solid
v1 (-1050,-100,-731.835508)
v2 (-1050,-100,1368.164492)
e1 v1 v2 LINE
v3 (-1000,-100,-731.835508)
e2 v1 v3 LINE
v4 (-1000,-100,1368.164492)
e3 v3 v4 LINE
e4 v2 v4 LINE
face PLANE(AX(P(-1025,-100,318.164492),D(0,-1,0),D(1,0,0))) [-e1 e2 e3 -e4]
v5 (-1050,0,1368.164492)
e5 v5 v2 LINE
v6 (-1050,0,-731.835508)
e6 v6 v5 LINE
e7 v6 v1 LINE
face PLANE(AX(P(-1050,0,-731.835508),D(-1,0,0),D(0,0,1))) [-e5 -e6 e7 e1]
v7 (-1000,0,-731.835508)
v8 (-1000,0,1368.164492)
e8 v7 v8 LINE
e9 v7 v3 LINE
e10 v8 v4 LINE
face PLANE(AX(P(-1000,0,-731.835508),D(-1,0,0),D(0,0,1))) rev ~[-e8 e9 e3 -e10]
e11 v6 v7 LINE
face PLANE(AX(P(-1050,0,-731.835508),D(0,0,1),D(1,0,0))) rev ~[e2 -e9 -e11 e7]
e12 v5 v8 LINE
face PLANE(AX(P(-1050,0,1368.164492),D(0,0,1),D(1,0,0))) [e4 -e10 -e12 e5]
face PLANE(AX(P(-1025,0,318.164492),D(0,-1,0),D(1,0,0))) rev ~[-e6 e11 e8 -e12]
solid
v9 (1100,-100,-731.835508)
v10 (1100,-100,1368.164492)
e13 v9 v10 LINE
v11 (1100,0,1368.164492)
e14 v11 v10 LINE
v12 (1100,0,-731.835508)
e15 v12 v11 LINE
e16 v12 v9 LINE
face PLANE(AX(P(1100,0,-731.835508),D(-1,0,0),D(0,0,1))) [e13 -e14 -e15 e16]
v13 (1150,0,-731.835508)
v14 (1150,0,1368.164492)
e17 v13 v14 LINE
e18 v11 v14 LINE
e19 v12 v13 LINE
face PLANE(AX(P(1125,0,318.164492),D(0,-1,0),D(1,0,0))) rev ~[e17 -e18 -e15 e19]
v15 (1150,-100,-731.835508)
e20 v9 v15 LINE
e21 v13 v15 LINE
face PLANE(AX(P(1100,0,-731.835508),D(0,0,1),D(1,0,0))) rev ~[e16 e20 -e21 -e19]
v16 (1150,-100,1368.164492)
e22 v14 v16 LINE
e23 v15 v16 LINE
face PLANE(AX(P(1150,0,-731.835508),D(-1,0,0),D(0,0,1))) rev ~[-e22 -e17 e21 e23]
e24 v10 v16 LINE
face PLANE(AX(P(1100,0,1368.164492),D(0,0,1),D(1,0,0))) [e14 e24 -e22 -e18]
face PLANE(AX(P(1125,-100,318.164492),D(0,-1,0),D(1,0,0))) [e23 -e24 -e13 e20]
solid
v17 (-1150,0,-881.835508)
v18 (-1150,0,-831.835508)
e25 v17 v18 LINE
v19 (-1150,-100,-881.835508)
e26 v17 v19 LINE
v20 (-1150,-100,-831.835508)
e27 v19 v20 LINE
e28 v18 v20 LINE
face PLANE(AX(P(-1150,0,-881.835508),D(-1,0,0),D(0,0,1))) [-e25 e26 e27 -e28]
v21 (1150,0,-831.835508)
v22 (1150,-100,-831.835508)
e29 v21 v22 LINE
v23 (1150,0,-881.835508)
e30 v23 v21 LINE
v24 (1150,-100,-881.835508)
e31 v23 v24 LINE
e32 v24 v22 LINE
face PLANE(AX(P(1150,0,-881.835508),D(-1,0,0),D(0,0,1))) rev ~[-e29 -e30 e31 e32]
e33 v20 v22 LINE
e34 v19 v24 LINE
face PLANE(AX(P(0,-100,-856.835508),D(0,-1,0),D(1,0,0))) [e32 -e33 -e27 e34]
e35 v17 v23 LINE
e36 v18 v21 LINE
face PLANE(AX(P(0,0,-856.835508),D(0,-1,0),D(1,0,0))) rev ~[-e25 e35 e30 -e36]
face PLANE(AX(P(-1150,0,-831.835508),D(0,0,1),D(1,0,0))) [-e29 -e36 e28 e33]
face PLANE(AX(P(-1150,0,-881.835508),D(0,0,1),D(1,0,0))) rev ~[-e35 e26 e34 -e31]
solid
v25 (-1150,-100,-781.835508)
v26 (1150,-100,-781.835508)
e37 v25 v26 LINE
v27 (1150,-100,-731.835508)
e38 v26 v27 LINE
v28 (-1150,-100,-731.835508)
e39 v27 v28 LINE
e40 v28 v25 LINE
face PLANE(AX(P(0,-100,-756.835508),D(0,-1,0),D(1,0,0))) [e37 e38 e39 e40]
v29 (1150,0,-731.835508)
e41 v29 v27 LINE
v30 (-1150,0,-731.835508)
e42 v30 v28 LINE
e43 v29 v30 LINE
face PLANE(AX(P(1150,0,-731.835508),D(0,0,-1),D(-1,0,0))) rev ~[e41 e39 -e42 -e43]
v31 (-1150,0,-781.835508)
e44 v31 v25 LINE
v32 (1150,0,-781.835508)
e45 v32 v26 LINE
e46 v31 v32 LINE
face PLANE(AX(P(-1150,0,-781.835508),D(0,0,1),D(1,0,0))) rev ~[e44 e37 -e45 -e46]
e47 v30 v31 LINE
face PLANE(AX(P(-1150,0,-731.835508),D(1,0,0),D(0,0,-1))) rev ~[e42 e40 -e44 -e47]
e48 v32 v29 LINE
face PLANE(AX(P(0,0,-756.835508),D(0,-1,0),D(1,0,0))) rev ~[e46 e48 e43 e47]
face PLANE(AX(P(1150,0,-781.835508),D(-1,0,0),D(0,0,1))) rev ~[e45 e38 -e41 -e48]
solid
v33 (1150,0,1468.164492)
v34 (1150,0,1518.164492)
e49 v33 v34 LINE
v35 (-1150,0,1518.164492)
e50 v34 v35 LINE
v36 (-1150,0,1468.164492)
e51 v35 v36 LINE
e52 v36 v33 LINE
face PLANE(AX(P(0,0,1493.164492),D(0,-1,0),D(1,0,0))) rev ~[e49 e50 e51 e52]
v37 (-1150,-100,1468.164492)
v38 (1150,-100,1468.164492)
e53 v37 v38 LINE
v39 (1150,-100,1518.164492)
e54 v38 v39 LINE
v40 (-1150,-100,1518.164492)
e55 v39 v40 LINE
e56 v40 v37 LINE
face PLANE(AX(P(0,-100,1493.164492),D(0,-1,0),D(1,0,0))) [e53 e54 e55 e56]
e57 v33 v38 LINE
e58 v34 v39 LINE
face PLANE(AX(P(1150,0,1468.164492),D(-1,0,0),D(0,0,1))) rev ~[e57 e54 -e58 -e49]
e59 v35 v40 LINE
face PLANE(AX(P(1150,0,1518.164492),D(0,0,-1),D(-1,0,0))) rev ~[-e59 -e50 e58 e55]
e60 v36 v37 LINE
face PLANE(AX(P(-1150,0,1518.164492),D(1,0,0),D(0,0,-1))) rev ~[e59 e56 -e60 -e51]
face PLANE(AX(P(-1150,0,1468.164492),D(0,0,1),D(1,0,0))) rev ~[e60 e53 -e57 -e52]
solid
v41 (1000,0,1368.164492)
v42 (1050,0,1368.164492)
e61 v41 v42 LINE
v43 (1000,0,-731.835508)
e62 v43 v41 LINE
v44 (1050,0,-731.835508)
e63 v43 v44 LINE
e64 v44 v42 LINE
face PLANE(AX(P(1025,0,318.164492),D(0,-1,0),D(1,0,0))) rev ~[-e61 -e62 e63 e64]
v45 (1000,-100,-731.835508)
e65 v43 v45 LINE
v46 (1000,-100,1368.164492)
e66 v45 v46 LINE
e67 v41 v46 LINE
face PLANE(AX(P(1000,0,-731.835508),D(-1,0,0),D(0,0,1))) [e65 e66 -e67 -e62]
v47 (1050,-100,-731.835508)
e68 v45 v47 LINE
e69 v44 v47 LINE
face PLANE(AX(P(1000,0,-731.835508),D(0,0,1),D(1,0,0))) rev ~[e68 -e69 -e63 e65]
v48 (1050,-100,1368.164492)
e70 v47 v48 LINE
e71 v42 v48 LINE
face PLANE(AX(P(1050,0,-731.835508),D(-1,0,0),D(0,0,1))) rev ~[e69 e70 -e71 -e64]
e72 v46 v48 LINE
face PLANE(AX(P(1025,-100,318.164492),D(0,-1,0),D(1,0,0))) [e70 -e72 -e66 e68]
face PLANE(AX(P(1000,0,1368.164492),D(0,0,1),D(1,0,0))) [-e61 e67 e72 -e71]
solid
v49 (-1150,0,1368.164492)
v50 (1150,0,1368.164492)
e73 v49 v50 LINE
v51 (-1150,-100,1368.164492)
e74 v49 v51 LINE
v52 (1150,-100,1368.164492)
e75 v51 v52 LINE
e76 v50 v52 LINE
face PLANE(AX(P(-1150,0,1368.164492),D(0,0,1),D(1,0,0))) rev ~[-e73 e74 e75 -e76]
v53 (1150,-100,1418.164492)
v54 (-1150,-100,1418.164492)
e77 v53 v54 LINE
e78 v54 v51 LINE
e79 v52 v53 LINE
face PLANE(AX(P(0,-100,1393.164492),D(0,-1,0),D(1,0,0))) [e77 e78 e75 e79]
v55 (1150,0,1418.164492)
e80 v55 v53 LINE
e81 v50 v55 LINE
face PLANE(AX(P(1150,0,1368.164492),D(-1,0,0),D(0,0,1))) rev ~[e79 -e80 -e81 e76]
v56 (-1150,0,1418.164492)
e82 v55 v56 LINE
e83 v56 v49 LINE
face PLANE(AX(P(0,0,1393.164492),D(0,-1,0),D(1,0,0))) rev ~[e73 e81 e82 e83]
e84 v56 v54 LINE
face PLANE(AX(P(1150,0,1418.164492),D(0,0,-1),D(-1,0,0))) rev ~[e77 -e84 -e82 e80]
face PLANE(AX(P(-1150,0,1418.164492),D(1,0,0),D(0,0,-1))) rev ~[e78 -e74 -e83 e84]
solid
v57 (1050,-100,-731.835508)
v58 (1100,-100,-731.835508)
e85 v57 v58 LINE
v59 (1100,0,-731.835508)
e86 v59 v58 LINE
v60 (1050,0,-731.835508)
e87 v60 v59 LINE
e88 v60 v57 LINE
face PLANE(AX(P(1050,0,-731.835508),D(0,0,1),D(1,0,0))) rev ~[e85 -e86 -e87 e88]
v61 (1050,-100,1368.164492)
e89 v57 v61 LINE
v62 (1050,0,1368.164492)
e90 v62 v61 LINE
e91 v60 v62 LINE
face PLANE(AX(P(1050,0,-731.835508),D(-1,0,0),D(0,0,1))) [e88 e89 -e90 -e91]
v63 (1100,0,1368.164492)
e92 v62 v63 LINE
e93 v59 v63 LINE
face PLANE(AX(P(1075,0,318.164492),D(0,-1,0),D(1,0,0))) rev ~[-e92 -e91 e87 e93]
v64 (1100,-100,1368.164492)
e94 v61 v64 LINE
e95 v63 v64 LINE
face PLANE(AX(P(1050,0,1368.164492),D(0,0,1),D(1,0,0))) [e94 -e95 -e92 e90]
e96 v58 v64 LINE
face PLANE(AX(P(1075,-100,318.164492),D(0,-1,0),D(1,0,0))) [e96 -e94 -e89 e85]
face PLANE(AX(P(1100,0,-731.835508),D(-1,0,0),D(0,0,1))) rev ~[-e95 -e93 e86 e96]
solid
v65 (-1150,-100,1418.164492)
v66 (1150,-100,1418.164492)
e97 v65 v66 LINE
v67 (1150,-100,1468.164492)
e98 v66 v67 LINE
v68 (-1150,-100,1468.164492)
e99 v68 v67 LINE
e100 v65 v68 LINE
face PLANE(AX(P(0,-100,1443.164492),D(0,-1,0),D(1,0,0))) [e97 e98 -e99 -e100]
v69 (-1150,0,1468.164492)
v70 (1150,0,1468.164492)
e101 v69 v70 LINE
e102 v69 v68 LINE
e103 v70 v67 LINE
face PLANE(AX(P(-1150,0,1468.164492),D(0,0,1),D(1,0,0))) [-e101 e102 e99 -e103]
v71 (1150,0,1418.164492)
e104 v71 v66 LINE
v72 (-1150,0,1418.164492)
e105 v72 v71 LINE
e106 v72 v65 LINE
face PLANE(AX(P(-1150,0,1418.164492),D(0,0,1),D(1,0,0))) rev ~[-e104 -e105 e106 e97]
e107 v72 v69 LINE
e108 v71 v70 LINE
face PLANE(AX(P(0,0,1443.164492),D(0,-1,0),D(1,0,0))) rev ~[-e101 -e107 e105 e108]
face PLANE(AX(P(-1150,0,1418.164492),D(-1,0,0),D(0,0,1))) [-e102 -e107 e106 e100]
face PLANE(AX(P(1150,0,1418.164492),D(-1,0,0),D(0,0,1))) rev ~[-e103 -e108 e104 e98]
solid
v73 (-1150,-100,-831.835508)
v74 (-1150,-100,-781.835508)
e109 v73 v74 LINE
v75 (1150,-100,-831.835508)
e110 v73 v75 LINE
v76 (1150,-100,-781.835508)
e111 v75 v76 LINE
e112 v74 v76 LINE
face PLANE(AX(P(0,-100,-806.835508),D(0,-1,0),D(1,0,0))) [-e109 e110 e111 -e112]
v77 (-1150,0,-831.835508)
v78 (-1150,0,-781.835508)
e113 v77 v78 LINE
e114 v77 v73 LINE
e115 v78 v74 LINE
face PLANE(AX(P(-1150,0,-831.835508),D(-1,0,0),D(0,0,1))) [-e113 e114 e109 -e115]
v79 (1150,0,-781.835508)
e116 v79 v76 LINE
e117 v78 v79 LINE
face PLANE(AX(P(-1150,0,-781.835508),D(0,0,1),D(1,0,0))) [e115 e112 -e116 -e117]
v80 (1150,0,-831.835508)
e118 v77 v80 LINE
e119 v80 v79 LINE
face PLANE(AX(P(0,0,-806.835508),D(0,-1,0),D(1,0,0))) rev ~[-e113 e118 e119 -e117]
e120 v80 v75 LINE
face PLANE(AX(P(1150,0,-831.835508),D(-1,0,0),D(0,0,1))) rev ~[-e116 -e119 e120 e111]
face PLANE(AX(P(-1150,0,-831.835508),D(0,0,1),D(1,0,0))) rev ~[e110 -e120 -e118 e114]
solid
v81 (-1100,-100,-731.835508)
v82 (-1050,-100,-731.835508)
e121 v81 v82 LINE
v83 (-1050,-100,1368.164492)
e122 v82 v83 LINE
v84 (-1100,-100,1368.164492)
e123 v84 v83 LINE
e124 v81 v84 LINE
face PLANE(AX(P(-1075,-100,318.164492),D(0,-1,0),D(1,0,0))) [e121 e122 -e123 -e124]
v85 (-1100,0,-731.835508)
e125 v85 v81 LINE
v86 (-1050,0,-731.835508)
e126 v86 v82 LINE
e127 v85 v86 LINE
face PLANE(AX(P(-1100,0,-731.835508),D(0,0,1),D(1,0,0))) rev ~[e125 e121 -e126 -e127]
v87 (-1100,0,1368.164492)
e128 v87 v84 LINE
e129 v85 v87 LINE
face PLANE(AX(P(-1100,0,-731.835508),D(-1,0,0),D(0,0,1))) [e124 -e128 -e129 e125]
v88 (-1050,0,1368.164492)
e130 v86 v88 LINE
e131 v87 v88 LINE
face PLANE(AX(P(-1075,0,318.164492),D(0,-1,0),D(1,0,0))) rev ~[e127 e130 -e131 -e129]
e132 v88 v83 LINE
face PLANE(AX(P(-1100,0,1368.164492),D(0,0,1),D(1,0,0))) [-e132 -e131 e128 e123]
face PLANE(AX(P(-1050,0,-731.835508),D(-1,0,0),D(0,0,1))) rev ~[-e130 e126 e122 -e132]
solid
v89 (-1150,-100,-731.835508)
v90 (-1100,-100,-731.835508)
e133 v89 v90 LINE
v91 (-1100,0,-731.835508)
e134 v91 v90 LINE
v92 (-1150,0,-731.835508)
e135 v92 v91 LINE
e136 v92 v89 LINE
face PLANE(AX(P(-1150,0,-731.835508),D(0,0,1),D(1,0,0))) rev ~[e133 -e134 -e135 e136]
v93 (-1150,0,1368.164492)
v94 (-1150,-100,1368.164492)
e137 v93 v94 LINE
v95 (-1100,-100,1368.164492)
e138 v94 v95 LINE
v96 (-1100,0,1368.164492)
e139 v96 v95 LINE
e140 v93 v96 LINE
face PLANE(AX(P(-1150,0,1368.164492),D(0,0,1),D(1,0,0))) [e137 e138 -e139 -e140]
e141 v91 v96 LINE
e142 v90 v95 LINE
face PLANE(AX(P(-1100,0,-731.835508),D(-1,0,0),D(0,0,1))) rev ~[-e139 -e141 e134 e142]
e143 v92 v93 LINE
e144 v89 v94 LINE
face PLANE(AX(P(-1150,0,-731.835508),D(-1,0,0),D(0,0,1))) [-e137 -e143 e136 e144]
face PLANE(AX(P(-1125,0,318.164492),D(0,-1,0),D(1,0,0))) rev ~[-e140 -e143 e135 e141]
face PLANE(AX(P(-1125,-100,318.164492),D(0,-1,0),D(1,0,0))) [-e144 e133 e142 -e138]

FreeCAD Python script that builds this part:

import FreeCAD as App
import Part
import Sketcher

doc = App.newDocument("Part")
body = doc.addObject("PartDesign::Body", "Body")
body.AllowCompound = True

sketch1 = body.newObject("Sketcher::SketchObject", "Sketch")
sketch1.AttachmentSupport = (doc.getObject("XZ_Plane"), [""])
sketch1.MapMode = "FlatFace"
sketch1.addGeometry([
    Part.LineSegment(App.Vector(-1150, 1468, 0), App.Vector(-1150, 1418, 0)),
    Part.LineSegment(App.Vector(-1150, 1418, 0), App.Vector(1150, 1418, 0)),
    Part.LineSegment(App.Vector(1150, 1418, 0), App.Vector(1150, 1468, 0)),
    Part.LineSegment(App.Vector(1150, 1468, 0), App.Vector(-1150, 1468, 0)),
    Part.LineSegment(App.Vector(-1150, 1368, 0), App.Vector(-1150, -732, 0)),
    Part.LineSegment(App.Vector(-1150, -732, 0), App.Vector(-1100, -732, 0)),
    Part.LineSegment(App.Vector(-1100, -732, 0), App.Vector(-1100, 1368, 0)),
    Part.LineSegment(App.Vector(-1100, 1368, 0), App.Vector(-1150, 1368, 0)),
    Part.LineSegment(App.Vector(-1050, 1368, 0), App.Vector(-1050, -732, 0)),
    Part.LineSegment(App.Vector(-1050, -732, 0), App.Vector(-1000, -732, 0)),
    Part.LineSegment(App.Vector(-1000, -732, 0), App.Vector(-1000, 1368, 0)),
    Part.LineSegment(App.Vector(-1000, 1368, 0), App.Vector(-1050, 1368, 0)),
    Part.LineSegment(App.Vector(-1150, -782, 0), App.Vector(-1150, -832, 0)),
    Part.LineSegment(App.Vector(-1150, -832, 0), App.Vector(1150, -832, 0)),
    Part.LineSegment(App.Vector(1150, -832, 0), App.Vector(1150, -782, 0)),
    Part.LineSegment(App.Vector(1150, -782, 0), App.Vector(-1150, -782, 0)),
    Part.LineSegment(App.Vector(1100, 1368, 0), App.Vector(1100, -732, 0)),
    Part.LineSegment(App.Vector(1100, -732, 0), App.Vector(1150, -732, 0)),
    Part.LineSegment(App.Vector(1150, -732, 0), App.Vector(1150, 1368, 0)),
    Part.LineSegment(App.Vector(1150, 1368, 0), App.Vector(1100, 1368, 0)),
    Part.LineSegment(App.Vector(1000, 1368, 0), App.Vector(1000, -732, 0)),
    Part.LineSegment(App.Vector(1000, -732, 0), App.Vector(1050, -732, 0)),
    Part.LineSegment(App.Vector(1050, -732, 0), App.Vector(1050, 1368, 0)),
    Part.LineSegment(App.Vector(1050, 1368, 0), App.Vector(1000, 1368, 0)),
], False)
sketch1.addConstraint([
    Sketcher.Constraint("Coincident", 0, 2, 1, 1),
    Sketcher.Constraint("Coincident", 1, 2, 2, 1),
    Sketcher.Constraint("Coincident", 2, 2, 3, 1),
    Sketcher.Constraint("Coincident", 3, 2, 0, 1),
    Sketcher.Constraint("Coincident", 4, 2, 5, 1),
    Sketcher.Constraint("Coincident", 5, 2, 6, 1),
    Sketcher.Constraint("Coincident", 6, 2, 7, 1),
    Sketcher.Constraint("Coincident", 7, 2, 4, 1),
    Sketcher.Constraint("Coincident", 8, 2, 9, 1),
    Sketcher.Constraint("Coincident", 9, 2, 10, 1),
    Sketcher.Constraint("Coincident", 10, 2, 11, 1),
    Sketcher.Constraint("Coincident", 11, 2, 8, 1),
    Sketcher.Constraint("Coincident", 12, 2, 13, 1),
    Sketcher.Constraint("Coincident", 13, 2, 14, 1),
    Sketcher.Constraint("Coincident", 14, 2, 15, 1),
    Sketcher.Constraint("Coincident", 15, 2, 12, 1),
    Sketcher.Constraint("Coincident", 16, 2, 17, 1),
    Sketcher.Constraint("Coincident", 17, 2, 18, 1),
    Sketcher.Constraint("Coincident", 18, 2, 19, 1),
    Sketcher.Constraint("Coincident", 19, 2, 16, 1),
    Sketcher.Constraint("Coincident", 20, 2, 21, 1),
    Sketcher.Constraint("Coincident", 21, 2, 22, 1),
    Sketcher.Constraint("Coincident", 22, 2, 23, 1),
    Sketcher.Constraint("Coincident", 23, 2, 20, 1),
    Sketcher.Constraint("Vertical", 0),
    Sketcher.Constraint("Horizontal", 1),
    Sketcher.Constraint("Vertical", 2),
    Sketcher.Constraint("Horizontal", 3),
    Sketcher.Constraint("Vertical", 4),
    Sketcher.Constraint("Horizontal", 5),
    Sketcher.Constraint("Vertical", 6),
    Sketcher.Constraint("Horizontal", 7),
    Sketcher.Constraint("Vertical", 8),
    Sketcher.Constraint("Horizontal", 9),
    Sketcher.Constraint("Vertical", 10),
    Sketcher.Constraint("Horizontal", 11),
    Sketcher.Constraint("Vertical", 12),
    Sketcher.Constraint("Horizontal", 13),
    Sketcher.Constraint("Vertical", 14),
    Sketcher.Constraint("Horizontal", 15),
    Sketcher.Constraint("Vertical", 16),
    Sketcher.Constraint("Horizontal", 17),
    Sketcher.Constraint("Vertical", 18),
    Sketcher.Constraint("Horizontal", 19),
    Sketcher.Constraint("Vertical", 20),
    Sketcher.Constraint("Horizontal", 21),
    Sketcher.Constraint("Vertical", 22),
    Sketcher.Constraint("Horizontal", 23),
    Sketcher.Constraint("Symmetric", 5, 2, 16, 2, -2),
    Sketcher.Constraint("Symmetric", 7, 2, 18, 2, -2),
    Sketcher.Constraint("Symmetric", 9, 2, 20, 2, -2),
    Sketcher.Constraint("Symmetric", 11, 2, 22, 2, -2),
    Sketcher.Constraint("Horizontal", 5, 2, 8, 2),
    Sketcher.Constraint("Horizontal", 7, 2, 10, 2),
    Sketcher.Constraint("Vertical", 3, 2, 4, 2),
    Sketcher.Constraint("Vertical", 7, 2, 12, 2),
    Sketcher.Constraint("Vertical", 2, 2, 13, 2),
    Sketcher.Constraint("Vertical", 14, 2, 17, 2),
    Sketcher.Constraint("Equal", 7, 9),
    Sketcher.Constraint("Equal", 23, 0),
    Sketcher.Constraint("Equal", 2, 12),
    Sketcher.Constraint("DistanceX", 1, 1, 1, 2, 2300.0),
    Sketcher.Constraint("DistanceX", 5, 1, 5, 2, 50.0),
    Sketcher.Constraint("DistanceY", 4, 2, 4, 1, 2100.0),
    Sketcher.Constraint("DistanceX", 8, 2, -1, 1, 1050.0),
    Sketcher.Constraint("DistanceY", 4, 2, 0, 2, 2150.0),
    Sketcher.Constraint("DistanceY", 12, 2, 4, 2, 100.0),
    Sketcher.Constraint("DistanceY", 4, 2, -1, 1, 731.835508),
])
pad1 = body.newObject("PartDesign::Pad", "Pad")
pad1.Profile = sketch1
pad1.Length = 100
body2 = doc.addObject("PartDesign::Body", "Body001")
body2.AllowCompound = True

sketch2 = body2.newObject("Sketcher::SketchObject", "Sketch001")
sketch2.AttachmentSupport = (doc.getObject("XZ_Plane001"), [""])
sketch2.MapMode = "FlatFace"
sketch2.addGeometry([
    Part.LineSegment(App.Vector(-1150, 1518, 0), App.Vector(-1150, 1468, 0)),
    Part.LineSegment(App.Vector(-1150, 1468, 0), App.Vector(1150, 1468, 0)),
    Part.LineSegment(App.Vector(1150, 1468, 0), App.Vector(1150, 1518, 0)),
    Part.LineSegment(App.Vector(1150, 1518, 0), App.Vector(-1150, 1518, 0)),
    Part.LineSegment(App.Vector(-1150, 1418, 0), App.Vector(-1150, 1368, 0)),
    Part.LineSegment(App.Vector(-1150, 1368, 0), App.Vector(1150, 1368, 0)),
    Part.LineSegment(App.Vector(1150, 1368, 0), App.Vector(1150, 1418, 0)),
    Part.LineSegment(App.Vector(1150, 1418, 0), App.Vector(-1150, 1418, 0)),
    Part.LineSegment(App.Vector(-1150, -732, 0), App.Vector(-1150, -782, 0)),
    Part.LineSegment(App.Vector(-1150, -782, 0), App.Vector(1150, -782, 0)),
    Part.LineSegment(App.Vector(1150, -782, 0), App.Vector(1150, -732, 0)),
    Part.LineSegment(App.Vector(1150, -732, 0), App.Vector(-1150, -732, 0)),
    Part.LineSegment(App.Vector(-1150, -832, 0), App.Vector(-1150, -882, 0)),
    Part.LineSegment(App.Vector(-1150, -882, 0), App.Vector(1150, -882, 0)),
    Part.LineSegment(App.Vector(1150, -882, 0), App.Vector(1150, -832, 0)),
    Part.LineSegment(App.Vector(1150, -832, 0), App.Vector(-1150, -832, 0)),
], False)
sketch2.addConstraint([
    Sketcher.Constraint("Coincident", 0, 2, 1, 1),
    Sketcher.Constraint("Coincident", 1, 2, 2, 1),
    Sketcher.Constraint("Coincident", 2, 2, 3, 1),
    Sketcher.Constraint("Coincident", 3, 2, 0, 1),
    Sketcher.Constraint("Coincident", 4, 2, 5, 1),
    Sketcher.Constraint("Coincident", 5, 2, 6, 1),
    Sketcher.Constraint("Coincident", 6, 2, 7, 1),
    Sketcher.Constraint("Coincident", 7, 2, 4, 1),
    Sketcher.Constraint("Coincident", 8, 2, 9, 1),
    Sketcher.Constraint("Coincident", 9, 2, 10, 1),
    Sketcher.Constraint("Coincident", 10, 2, 11, 1),
    Sketcher.Constraint("Coincident", 11, 2, 8, 1),
    Sketcher.Constraint("Coincident", 12, 2, 13, 1),
    Sketcher.Constraint("Coincident", 13, 2, 14, 1),
    Sketcher.Constraint("Coincident", 14, 2, 15, 1),
    Sketcher.Constraint("Coincident", 15, 2, 12, 1),
    Sketcher.Constraint("Vertical", 0),
    Sketcher.Constraint("Horizontal", 1),
    Sketcher.Constraint("Vertical", 2),
    Sketcher.Constraint("Horizontal", 3),
    Sketcher.Constraint("Vertical", 4),
    Sketcher.Constraint("Horizontal", 5),
    Sketcher.Constraint("Vertical", 6),
    Sketcher.Constraint("Horizontal", 7),
    Sketcher.Constraint("Vertical", 8),
    Sketcher.Constraint("Horizontal", 9),
    Sketcher.Constraint("Vertical", 10),
    Sketcher.Constraint("Horizontal", 11),
    Sketcher.Constraint("Vertical", 12),
    Sketcher.Constraint("Horizontal", 13),
    Sketcher.Constraint("Vertical", 14),
    Sketcher.Constraint("Horizontal", 15),
    Sketcher.Constraint("Vertical", 3, 2, 4, 2),
    Sketcher.Constraint("Vertical", 2, 2, 5, 2),
    Sketcher.Constraint("Vertical", 7, 2, 8, 2),
    Sketcher.Constraint("Vertical", 6, 2, 9, 2),
    Sketcher.Constraint("Vertical", 11, 2, 12, 2),
    Sketcher.Constraint("Vertical", 10, 2, 13, 2),
    Sketcher.Constraint("Equal", 2, 4),
    Sketcher.Constraint("Equal", 6, 8),
    Sketcher.Constraint("Equal", 10, 12),
    Sketcher.Constraint("DistanceX", 1, 1, 1, 2, 2300.0),
    Sketcher.Constraint("DistanceY", 0, 2, 0, 1, 50.0),
    Sketcher.Constraint("DistanceX", 0, 2, -1, 1, 1150.0),
    Sketcher.Constraint("DistanceY", 4, 2, 0, 2, 100.0),
    Sketcher.Constraint("DistanceY", 8, 2, 4, 2, 2150.0),
    Sketcher.Constraint("DistanceY", 12, 2, 8, 2, 100.0),
    Sketcher.Constraint("DistanceY", 8, 2, -1, 1, 781.835508),
])
pad2 = body2.newObject("PartDesign::Pad", "Pad001")
pad2.Profile = sketch2
pad2.Length = 100
body3 = doc.addObject("PartDesign::Body", "Body002")
body3.AllowCompound = True

sketch3 = body3.newObject("Sketcher::SketchObject", "Sketch002")
sketch3.AttachmentSupport = (doc.getObject("XZ_Plane002"), [""])
sketch3.MapMode = "FlatFace"
sketch3.addGeometry([
    Part.LineSegment(App.Vector(-1100, 1368, 0), App.Vector(-1100, -732, 0)),
    Part.LineSegment(App.Vector(-1100, -732, 0), App.Vector(-1050, -732, 0)),
    Part.LineSegment(App.Vector(-1050, -732, 0), App.Vector(-1050, 1368, 0)),
    Part.LineSegment(App.Vector(-1050, 1368, 0), App.Vector(-1100, 1368, 0)),
    Part.LineSegment(App.Vector(1050, 1368, 0), App.Vector(1050, -732, 0)),
    Part.LineSegment(App.Vector(1050, -732, 0), App.Vector(1100, -732, 0)),
    Part.LineSegment(App.Vector(1100, -732, 0), App.Vector(1100, 1368, 0)),
    Part.LineSegment(App.Vector(1100, 1368, 0), App.Vector(1050, 1368, 0)),
], False)
sketch3.addConstraint([
    Sketcher.Constraint("Coincident", 0, 2, 1, 1),
    Sketcher.Constraint("Coincident", 1, 2, 2, 1),
    Sketcher.Constraint("Coincident", 2, 2, 3, 1),
    Sketcher.Constraint("Coincident", 3, 2, 0, 1),
    Sketcher.Constraint("Coincident", 4, 2, 5, 1),
    Sketcher.Constraint("Coincident", 5, 2, 6, 1),
    Sketcher.Constraint("Coincident", 6, 2, 7, 1),
    Sketcher.Constraint("Coincident", 7, 2, 4, 1),
    Sketcher.Constraint("Vertical", 0),
    Sketcher.Constraint("Horizontal", 1),
    Sketcher.Constraint("Vertical", 2),
    Sketcher.Constraint("Horizontal", 3),
    Sketcher.Constraint("Vertical", 4),
    Sketcher.Constraint("Horizontal", 5),
    Sketcher.Constraint("Vertical", 6),
    Sketcher.Constraint("Horizontal", 7),
    Sketcher.Constraint("Symmetric", 1, 2, 4, 2, -2),
    Sketcher.Constraint("Symmetric", 3, 2, 6, 2, -2),
    Sketcher.Constraint("DistanceX", 1, 1, 1, 2, 50.0),
    Sketcher.Constraint("DistanceY", 0, 2, 0, 1, 2100.0),
    Sketcher.Constraint("DistanceX", 0, 2, -1, 1, 1100.0),
    Sketcher.Constraint("DistanceY", 0, 2, -1, 1, 731.835508),
])
pad3 = body3.newObject("PartDesign::Pad", "Pad002")
pad3.Profile = sketch3
pad3.Length = 100

doc.recompute()
